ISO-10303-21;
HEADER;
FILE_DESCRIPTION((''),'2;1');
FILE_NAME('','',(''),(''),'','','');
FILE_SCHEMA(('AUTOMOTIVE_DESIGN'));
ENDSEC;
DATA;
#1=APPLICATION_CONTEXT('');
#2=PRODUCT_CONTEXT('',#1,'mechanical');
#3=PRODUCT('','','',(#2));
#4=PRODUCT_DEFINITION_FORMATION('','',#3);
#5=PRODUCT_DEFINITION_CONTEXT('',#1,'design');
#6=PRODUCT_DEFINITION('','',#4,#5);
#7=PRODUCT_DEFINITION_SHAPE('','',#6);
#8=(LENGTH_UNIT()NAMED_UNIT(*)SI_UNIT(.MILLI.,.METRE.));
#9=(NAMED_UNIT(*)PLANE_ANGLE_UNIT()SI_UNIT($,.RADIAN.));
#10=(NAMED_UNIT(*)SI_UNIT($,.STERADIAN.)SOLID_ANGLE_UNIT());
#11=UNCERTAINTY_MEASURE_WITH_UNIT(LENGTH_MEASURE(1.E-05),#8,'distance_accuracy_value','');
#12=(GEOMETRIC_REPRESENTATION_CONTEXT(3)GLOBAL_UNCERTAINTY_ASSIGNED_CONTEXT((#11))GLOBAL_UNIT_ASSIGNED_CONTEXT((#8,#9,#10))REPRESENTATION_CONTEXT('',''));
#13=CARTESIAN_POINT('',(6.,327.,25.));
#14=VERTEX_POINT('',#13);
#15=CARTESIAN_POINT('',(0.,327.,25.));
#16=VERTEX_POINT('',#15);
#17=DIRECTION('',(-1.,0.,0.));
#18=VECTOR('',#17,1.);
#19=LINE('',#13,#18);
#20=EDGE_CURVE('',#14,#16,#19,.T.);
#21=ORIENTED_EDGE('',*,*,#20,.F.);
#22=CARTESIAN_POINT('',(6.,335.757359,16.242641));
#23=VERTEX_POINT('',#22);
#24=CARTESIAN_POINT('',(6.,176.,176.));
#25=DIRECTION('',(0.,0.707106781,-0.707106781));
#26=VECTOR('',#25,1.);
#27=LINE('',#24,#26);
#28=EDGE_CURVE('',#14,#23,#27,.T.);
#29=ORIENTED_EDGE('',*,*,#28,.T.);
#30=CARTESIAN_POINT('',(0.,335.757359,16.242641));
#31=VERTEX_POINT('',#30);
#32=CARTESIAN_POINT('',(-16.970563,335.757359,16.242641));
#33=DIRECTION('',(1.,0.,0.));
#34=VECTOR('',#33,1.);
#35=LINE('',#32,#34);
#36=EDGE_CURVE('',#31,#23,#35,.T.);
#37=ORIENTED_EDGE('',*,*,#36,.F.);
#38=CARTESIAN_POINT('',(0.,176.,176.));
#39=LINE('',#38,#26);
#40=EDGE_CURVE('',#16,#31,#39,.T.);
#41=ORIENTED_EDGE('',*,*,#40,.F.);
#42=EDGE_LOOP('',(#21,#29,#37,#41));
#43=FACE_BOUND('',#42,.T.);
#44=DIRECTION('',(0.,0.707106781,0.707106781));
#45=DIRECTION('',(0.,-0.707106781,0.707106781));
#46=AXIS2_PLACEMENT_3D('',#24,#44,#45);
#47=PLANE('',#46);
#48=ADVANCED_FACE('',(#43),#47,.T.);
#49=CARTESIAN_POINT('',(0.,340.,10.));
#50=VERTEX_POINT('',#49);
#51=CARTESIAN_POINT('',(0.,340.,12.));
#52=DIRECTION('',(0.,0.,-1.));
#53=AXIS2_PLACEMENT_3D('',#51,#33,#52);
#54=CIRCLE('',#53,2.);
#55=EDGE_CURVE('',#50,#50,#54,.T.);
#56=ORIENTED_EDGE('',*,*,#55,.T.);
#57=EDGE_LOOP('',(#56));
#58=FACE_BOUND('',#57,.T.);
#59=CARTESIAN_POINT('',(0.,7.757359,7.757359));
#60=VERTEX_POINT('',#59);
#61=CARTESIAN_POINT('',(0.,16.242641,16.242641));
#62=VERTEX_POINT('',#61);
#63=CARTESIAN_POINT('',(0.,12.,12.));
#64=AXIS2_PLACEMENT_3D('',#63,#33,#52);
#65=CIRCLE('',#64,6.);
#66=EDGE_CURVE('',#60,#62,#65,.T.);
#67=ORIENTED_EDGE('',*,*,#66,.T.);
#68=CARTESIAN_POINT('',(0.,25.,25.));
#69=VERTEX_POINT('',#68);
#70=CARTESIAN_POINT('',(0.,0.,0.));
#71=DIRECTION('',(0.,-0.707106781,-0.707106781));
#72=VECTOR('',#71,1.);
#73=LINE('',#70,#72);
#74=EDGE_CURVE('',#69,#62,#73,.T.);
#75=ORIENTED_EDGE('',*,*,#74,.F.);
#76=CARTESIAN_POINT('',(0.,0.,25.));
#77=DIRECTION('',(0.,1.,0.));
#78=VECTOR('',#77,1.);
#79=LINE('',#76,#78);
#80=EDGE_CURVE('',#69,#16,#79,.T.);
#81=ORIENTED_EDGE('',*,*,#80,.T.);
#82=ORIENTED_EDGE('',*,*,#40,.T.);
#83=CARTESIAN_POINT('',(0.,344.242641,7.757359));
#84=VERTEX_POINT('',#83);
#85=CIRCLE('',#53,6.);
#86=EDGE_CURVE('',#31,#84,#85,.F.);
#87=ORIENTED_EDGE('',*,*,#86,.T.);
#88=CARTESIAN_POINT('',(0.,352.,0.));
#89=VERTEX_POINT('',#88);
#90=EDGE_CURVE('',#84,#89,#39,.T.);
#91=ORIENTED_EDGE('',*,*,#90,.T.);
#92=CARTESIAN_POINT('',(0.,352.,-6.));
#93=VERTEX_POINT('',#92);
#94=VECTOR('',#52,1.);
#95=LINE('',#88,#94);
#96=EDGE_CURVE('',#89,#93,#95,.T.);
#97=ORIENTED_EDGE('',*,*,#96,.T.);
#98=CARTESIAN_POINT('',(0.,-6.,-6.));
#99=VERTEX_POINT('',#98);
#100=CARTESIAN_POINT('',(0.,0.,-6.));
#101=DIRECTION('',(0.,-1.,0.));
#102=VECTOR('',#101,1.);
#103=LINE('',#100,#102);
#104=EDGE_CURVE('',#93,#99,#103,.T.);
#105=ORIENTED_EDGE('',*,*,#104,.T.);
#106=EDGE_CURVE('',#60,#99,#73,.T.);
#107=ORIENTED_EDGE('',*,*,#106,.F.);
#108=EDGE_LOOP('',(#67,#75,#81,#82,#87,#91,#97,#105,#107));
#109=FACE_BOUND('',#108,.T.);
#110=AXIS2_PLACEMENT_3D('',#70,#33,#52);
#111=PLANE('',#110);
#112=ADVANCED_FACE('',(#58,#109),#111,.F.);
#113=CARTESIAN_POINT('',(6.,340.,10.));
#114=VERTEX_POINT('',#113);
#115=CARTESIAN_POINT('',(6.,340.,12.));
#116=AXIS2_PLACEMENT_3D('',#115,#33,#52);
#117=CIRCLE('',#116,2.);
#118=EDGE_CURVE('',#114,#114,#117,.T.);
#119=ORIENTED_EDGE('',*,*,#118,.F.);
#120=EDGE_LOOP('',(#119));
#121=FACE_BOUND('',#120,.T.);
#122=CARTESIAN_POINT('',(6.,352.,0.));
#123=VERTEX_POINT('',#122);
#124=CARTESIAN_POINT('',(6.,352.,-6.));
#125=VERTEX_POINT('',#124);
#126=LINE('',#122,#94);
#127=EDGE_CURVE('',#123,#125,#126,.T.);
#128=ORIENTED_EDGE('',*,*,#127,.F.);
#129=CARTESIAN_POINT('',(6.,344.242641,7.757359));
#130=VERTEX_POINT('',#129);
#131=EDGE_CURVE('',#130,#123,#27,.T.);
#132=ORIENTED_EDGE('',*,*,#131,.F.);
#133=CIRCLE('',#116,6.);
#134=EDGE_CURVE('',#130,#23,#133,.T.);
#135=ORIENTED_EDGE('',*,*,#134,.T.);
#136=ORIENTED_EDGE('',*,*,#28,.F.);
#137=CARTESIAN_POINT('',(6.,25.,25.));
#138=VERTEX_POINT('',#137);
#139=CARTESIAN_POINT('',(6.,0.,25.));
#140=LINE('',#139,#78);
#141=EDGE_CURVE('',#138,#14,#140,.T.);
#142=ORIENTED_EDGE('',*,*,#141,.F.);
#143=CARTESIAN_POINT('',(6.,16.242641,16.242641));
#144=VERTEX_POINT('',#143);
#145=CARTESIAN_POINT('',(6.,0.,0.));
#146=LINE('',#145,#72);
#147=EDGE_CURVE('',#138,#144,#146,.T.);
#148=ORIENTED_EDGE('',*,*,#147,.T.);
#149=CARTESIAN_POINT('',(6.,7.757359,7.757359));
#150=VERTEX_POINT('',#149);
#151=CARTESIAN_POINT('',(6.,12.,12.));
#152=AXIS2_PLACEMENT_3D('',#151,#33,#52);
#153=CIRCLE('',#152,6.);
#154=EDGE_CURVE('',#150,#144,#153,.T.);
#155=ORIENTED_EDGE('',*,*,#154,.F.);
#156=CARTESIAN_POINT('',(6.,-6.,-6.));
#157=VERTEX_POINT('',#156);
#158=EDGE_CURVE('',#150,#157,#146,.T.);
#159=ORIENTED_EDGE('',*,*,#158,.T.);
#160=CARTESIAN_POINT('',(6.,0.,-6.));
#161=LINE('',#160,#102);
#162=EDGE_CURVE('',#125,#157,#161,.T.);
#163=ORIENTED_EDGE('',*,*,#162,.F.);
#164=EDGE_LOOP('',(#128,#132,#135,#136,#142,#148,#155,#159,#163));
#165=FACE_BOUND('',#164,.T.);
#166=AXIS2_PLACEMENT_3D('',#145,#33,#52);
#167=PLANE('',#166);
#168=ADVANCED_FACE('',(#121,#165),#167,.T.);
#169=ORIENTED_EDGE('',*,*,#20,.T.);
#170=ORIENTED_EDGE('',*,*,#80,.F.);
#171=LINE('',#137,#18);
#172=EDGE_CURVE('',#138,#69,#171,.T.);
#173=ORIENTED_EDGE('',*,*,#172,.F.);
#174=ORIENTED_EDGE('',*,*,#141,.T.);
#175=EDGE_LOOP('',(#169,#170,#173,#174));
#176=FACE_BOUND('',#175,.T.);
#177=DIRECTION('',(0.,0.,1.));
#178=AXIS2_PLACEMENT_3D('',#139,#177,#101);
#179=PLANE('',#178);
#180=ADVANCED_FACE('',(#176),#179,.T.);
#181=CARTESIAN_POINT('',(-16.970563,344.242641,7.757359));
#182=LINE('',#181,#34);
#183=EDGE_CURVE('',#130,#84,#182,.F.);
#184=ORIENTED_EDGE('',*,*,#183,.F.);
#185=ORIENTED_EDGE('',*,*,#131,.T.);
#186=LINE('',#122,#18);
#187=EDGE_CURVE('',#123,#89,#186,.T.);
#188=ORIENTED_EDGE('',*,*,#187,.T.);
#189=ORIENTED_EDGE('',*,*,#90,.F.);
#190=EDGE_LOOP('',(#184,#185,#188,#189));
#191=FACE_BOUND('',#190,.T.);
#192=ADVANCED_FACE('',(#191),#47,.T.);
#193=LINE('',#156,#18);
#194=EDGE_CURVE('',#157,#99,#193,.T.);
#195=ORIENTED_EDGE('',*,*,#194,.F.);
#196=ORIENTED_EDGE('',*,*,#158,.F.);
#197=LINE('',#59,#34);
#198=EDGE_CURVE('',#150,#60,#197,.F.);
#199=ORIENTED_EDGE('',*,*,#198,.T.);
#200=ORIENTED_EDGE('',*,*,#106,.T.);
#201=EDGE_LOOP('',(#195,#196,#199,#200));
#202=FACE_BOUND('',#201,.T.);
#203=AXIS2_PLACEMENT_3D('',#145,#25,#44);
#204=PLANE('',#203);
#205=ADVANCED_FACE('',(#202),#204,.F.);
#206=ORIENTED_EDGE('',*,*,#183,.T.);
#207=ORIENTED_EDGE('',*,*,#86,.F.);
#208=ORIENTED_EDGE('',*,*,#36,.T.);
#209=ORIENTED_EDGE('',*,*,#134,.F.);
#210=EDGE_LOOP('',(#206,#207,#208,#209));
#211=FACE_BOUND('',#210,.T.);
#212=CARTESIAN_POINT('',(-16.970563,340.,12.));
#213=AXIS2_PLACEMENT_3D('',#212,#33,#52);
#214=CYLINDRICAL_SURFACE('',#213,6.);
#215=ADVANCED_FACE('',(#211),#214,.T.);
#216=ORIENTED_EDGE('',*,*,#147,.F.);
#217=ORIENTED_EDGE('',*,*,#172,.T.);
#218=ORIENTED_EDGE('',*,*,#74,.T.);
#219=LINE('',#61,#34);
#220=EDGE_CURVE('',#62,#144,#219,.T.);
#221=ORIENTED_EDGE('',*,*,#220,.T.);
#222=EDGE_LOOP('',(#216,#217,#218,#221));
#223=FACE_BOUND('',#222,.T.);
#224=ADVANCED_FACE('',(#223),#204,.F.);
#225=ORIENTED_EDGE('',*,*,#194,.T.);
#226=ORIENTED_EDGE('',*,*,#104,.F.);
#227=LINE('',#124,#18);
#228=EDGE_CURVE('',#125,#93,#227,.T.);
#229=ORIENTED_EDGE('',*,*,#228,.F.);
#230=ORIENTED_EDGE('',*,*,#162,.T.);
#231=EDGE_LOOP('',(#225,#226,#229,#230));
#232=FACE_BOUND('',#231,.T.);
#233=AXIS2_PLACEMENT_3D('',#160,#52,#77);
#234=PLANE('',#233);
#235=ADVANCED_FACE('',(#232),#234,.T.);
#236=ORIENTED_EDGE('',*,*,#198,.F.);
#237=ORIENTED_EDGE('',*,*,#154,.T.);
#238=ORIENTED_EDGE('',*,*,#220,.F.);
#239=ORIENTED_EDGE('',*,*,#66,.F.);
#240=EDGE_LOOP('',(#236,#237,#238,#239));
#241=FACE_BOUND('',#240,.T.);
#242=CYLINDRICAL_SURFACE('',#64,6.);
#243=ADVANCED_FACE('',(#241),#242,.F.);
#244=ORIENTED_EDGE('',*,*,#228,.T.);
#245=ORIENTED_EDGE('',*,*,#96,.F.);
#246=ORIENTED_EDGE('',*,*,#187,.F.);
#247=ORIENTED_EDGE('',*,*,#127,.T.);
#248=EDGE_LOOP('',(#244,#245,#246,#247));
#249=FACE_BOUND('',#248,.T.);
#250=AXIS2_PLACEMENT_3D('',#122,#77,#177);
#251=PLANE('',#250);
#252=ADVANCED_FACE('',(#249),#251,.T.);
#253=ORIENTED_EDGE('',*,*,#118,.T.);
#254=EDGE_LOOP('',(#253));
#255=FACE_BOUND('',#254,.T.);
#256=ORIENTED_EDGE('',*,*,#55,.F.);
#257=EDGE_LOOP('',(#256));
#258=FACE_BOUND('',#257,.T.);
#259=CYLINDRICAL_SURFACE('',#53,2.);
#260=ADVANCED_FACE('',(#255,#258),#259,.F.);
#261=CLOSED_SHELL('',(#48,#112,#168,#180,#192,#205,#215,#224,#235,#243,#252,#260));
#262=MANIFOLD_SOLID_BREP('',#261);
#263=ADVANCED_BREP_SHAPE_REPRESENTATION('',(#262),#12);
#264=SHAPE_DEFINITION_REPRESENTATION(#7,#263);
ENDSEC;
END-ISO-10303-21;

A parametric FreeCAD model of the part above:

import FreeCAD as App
import Part
import Sketcher
Q = App.Units.Quantity

doc = App.newDocument("Part")
params = doc.addObject("Spreadsheet::Sheet", "Params")
for row, (alias, value) in enumerate([
    ("sketch1_width", "302 mm"),
    ("sketch1_width2", "358 mm"),
    ("sketch1_height", "6 mm"),
    ("pad1_length", "6 mm"),
    ("sketch2_diameter", "12 mm"),
    ("pad2_length", "6 mm"),
    ("sketch3_diameter", "4 mm"),
    ("sketch3_diameter2", "12 mm"),
], start=1):
    params.set(f"A{row}", alias)
    params.set(f"B{row}", "=" + value)
    params.setAlias(f"B{row}", alias)

body = doc.addObject("PartDesign::Body", "Body")

# Sketch on YZ plane
sketch1 = body.newObject("Sketcher::SketchObject", "Sketch")
sketch1.AttachmentSupport = (doc.getObject("YZ_Plane"), [""])
sketch1.MapMode = "FlatFace"
sketch1.addGeometry(Part.LineSegment(App.Vector(352, -6, 0), App.Vector(352, 0, 0)), False)
sketch1.addGeometry(Part.LineSegment(App.Vector(352, 0, 0), App.Vector(327, 25, 0)), False)
sketch1.addGeometry(Part.LineSegment(App.Vector(327, 25, 0), App.Vector(25, 25, 0)), False)
sketch1.addGeometry(Part.LineSegment(App.Vector(25, 25, 0), App.Vector(-6, -6, 0)), False)
sketch1.addGeometry(Part.LineSegment(App.Vector(-6, -6, 0), App.Vector(352, -6, 0)), False)
sketch1.addConstraint(Sketcher.Constraint("Coincident", 0, 2, 1, 1))
sketch1.addConstraint(Sketcher.Constraint("Coincident", 1, 2, 2, 1))
sketch1.addConstraint(Sketcher.Constraint("Coincident", 2, 2, 3, 1))
sketch1.addConstraint(Sketcher.Constraint("Coincident", 3, 2, 4, 1))
sketch1.addConstraint(Sketcher.Constraint("Coincident", 4, 2, 0, 1))
sketch1.addConstraint(Sketcher.Constraint("Vertical", 0))
sketch1.addConstraint(Sketcher.Constraint("Horizontal", 2))
sketch1.addConstraint(Sketcher.Constraint("Horizontal", 4))
sketch1.addConstraint(Sketcher.Constraint("PointOnObject", 0, 2, -1))
sketch1.addConstraint(Sketcher.Constraint("Perpendicular", 1, 3))
sketch1.addConstraint(Sketcher.Constraint("DistanceX", 2, 2, 2, 1, Q("302 mm")))
sketch1.addConstraint(Sketcher.Constraint("DistanceX", 4, 1, 4, 2, Q("358 mm")))
sketch1.addConstraint(Sketcher.Constraint("DistanceY", 0, 1, 0, 2, Q("6 mm")))
sketch1.addConstraint(Sketcher.Constraint("Angle", 1, Q("135 deg")))
sketch1.addConstraint(Sketcher.Constraint("DistanceX", -1, 1, 0, 2, Q("352 mm")))
sketch1.setExpression("Constraints[10]", "Params.sketch1_width")
sketch1.setExpression("Constraints[11]", "Params.sketch1_width2")
sketch1.setExpression("Constraints[12]", "Params.sketch1_height")
pad1 = body.newObject("PartDesign::Pad", "Pad")
pad1.Profile = sketch1
pad1.setExpression("Length", "Params.pad1_length")

# Sketch on YZ plane
sketch2 = body.newObject("Sketcher::SketchObject", "Sketch001")
sketch2.AttachmentSupport = (doc.getObject("YZ_Plane"), [""])
sketch2.MapMode = "FlatFace"
sketch2.AttachmentOffset = App.Placement(App.Vector(0, 0, 6), App.Rotation())
sketch2.addGeometry(Part.Circle(App.Vector(340, 12, 0), App.Vector(0, 0, 1), 6), False)
sketch2.addConstraint(Sketcher.Constraint("Diameter", 0, Q("12 mm")))
sketch2.addConstraint(Sketcher.Constraint("DistanceX", -1, 1, 0, 3, Q("340 mm")))
sketch2.addConstraint(Sketcher.Constraint("DistanceY", -1, 1, 0, 3, Q("12 mm")))
sketch2.setExpression("Constraints[0]", "Params.sketch2_diameter")
pad2 = body.newObject("PartDesign::Pad", "Pad001")
pad2.Profile = sketch2
pad2.setExpression("Length", "Params.pad2_length")
pad2.Reversed = True

# Sketch on YZ plane
sketch3 = body.newObject("Sketcher::SketchObject", "Sketch002")
sketch3.AttachmentSupport = (doc.getObject("YZ_Plane"), [""])
sketch3.MapMode = "FlatFace"
sketch3.AttachmentOffset = App.Placement(App.Vector(0, 0, 6), App.Rotation())
sketch3.addGeometry(Part.Circle(App.Vector(340, 12, 0), App.Vector(0, 0, 1), 2), False)
sketch3.addGeometry(Part.Circle(App.Vector(12, 12, 0), App.Vector(0, 0, 1), 6), False)
sketch3.addConstraint(Sketcher.Constraint("Horizontal", 0, 3, 1, 3))
sketch3.addConstraint(Sketcher.Constraint("Diameter", 0, Q("4 mm")))
sketch3.addConstraint(Sketcher.Constraint("Diameter", 1, Q("12 mm")))
sketch3.addConstraint(Sketcher.Constraint("DistanceX", -1, 1, 0, 3, Q("340 mm")))
sketch3.addConstraint(Sketcher.Constraint("DistanceY", -1, 1, 0, 3, Q("12 mm")))
sketch3.addConstraint(Sketcher.Constraint("DistanceX", -1, 1, 1, 3, Q("12 mm")))
sketch3.setExpression("Constraints[1]", "Params.sketch3_diameter")
sketch3.setExpression("Constraints[2]", "Params.sketch3_diameter2")
pocket1 = body.newObject("PartDesign::Pocket", "Pocket")
pocket1.Profile = sketch3
pocket1.Type = "ThroughAll"

doc.recompute()
